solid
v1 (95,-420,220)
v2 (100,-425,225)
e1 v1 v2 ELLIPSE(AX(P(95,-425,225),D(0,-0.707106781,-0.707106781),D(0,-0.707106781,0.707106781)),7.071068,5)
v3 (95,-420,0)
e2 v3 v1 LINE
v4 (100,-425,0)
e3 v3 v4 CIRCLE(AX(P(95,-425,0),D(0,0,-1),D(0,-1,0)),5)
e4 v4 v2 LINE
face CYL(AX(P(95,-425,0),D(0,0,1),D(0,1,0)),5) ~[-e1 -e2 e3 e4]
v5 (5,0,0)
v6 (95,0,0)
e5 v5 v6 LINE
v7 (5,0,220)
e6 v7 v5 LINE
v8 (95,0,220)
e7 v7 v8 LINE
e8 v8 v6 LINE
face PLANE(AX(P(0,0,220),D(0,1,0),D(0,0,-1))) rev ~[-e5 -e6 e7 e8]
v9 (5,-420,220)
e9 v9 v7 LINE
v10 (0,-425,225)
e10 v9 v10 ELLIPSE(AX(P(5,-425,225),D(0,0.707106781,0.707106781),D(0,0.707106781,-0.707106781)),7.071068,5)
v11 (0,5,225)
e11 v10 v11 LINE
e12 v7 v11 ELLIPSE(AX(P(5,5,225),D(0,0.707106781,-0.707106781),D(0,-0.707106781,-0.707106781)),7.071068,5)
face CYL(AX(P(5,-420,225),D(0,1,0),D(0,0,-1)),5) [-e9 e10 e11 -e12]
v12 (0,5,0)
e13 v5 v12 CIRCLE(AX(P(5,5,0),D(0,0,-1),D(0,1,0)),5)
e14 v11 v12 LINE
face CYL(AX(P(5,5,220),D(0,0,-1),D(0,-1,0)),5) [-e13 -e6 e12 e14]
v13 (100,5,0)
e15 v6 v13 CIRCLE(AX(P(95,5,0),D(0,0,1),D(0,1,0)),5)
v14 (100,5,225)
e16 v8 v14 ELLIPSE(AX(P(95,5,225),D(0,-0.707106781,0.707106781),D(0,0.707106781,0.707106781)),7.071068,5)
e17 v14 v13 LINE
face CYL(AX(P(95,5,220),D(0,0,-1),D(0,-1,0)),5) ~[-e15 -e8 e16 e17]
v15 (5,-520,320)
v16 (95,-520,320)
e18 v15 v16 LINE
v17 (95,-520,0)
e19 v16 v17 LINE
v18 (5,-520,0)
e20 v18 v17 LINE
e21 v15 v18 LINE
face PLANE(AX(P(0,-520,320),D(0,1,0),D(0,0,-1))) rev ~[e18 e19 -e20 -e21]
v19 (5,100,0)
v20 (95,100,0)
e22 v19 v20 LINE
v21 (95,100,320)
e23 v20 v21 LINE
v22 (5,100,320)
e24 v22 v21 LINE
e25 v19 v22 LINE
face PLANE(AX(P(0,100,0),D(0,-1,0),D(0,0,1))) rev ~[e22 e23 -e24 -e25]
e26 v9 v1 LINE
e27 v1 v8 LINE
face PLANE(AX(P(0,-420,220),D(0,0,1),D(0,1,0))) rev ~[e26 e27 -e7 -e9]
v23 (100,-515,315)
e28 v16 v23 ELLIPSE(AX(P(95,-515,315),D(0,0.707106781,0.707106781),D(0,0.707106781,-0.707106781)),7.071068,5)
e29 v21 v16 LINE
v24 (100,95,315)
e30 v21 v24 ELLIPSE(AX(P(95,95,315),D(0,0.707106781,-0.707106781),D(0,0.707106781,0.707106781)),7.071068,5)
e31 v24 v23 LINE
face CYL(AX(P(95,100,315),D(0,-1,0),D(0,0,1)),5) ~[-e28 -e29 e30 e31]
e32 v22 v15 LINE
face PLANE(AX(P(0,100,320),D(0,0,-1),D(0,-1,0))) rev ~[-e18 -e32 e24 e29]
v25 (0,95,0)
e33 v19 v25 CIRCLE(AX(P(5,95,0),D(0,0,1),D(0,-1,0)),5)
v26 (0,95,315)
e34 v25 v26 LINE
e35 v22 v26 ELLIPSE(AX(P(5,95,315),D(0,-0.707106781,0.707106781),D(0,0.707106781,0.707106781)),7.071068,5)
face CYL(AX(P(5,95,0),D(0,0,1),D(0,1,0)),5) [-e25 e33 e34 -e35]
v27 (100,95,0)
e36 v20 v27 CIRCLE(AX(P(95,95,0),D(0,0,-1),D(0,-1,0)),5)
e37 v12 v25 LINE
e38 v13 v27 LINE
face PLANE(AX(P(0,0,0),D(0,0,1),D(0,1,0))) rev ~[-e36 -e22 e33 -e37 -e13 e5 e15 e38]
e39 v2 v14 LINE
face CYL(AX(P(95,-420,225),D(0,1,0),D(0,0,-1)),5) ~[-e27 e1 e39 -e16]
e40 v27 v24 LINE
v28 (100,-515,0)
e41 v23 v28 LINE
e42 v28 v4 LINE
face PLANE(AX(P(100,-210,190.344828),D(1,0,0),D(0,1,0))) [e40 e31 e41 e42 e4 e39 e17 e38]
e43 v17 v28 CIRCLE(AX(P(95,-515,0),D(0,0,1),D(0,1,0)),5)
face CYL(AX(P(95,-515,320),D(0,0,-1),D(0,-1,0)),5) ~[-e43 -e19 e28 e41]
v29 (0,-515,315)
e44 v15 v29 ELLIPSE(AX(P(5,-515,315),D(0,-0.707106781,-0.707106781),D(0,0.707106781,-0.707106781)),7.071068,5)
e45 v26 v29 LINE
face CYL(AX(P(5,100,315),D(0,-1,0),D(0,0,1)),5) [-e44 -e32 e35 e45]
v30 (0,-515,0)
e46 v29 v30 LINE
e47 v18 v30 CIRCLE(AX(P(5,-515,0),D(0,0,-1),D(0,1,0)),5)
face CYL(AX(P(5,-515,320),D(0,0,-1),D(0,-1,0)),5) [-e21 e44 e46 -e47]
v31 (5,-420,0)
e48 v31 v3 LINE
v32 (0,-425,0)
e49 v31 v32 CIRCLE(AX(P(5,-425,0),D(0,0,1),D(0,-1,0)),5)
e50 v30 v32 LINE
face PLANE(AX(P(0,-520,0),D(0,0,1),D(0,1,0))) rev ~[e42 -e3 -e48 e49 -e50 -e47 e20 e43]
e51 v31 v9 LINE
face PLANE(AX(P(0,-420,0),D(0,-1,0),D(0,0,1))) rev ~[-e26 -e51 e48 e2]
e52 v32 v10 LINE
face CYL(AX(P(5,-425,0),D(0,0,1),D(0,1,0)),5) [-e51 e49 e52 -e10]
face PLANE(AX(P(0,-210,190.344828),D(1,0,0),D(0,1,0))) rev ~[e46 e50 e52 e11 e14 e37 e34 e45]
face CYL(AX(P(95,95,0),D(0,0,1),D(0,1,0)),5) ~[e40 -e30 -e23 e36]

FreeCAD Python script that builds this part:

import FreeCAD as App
import Part
import Sketcher
from FreeCAD import Vector
Q = App.Units.Quantity


def edges_at(feature, points):
    """Names of the edges that pass closest to the given points."""
    edges = feature.Shape.Edges
    near = lambda p: min(range(len(edges)), key=lambda i: edges[i].distToShape(Part.Vertex(*p))[0])
    return sorted({f"Edge{near(p) + 1}" for p in points})

doc = App.newDocument("Part")
params = doc.addObject("Spreadsheet::Sheet", "Params")
for row, (alias, value) in enumerate([
    ("sketch1_width", "100 mm"),
    ("sketch1_width2", "620 mm"),
    ("sketch1_height", "220 mm"),
    ("sketch1_height2", "320 mm"),
    ("pad1_length", "100 mm"),
    ("fillet_radius", "5 mm"),
], start=1):
    params.set(f"A{row}", alias)
    params.set(f"B{row}", "=" + value)
    params.setAlias(f"B{row}", alias)

body = doc.addObject("PartDesign::Body", "Body")

sketch1 = doc.addObject("Sketcher::SketchObject", "Sketch")
body.addObject(sketch1)
sketch1.AttachmentSupport = (doc.YZ_Plane, [""])
sketch1.MapMode = "FlatFace"
sketch1.addGeometry(Part.LineSegment(Vector(0, 220, 0), Vector(0, 0, 0)), False)
sketch1.addGeometry(Part.LineSegment(Vector(0, 0, 0), Vector(100, 0, 0)), False)
sketch1.addGeometry(Part.LineSegment(Vector(100, 0, 0), Vector(100, 320, 0)), False)
sketch1.addGeometry(Part.LineSegment(Vector(100, 320, 0), Vector(-520, 320, 0)), False)
sketch1.addGeometry(Part.LineSegment(Vector(-520, 320, 0), Vector(-520, 0, 0)), False)
sketch1.addGeometry(Part.LineSegment(Vector(-520, 0, 0), Vector(-420, 0, 0)), False)
sketch1.addGeometry(Part.LineSegment(Vector(-420, 0, 0), Vector(-420, 220, 0)), False)
sketch1.addGeometry(Part.LineSegment(Vector(-420, 220, 0), Vector(0, 220, 0)), False)
sketch1.addConstraint(Sketcher.Constraint("Coincident", 0, 2, 1, 1))
sketch1.addConstraint(Sketcher.Constraint("Coincident", 1, 2, 2, 1))
sketch1.addConstraint(Sketcher.Constraint("Coincident", 2, 2, 3, 1))
sketch1.addConstraint(Sketcher.Constraint("Coincident", 3, 2, 4, 1))
sketch1.addConstraint(Sketcher.Constraint("Coincident", 4, 2, 5, 1))
sketch1.addConstraint(Sketcher.Constraint("Coincident", 5, 2, 6, 1))
sketch1.addConstraint(Sketcher.Constraint("Coincident", 6, 2, 7, 1))
sketch1.addConstraint(Sketcher.Constraint("Coincident", 7, 2, 0, 1))
sketch1.addConstraint(Sketcher.Constraint("Vertical", 0))
sketch1.addConstraint(Sketcher.Constraint("Horizontal", 1))
sketch1.addConstraint(Sketcher.Constraint("Vertical", 2))
sketch1.addConstraint(Sketcher.Constraint("Horizontal", 3))
sketch1.addConstraint(Sketcher.Constraint("Vertical", 4))
sketch1.addConstraint(Sketcher.Constraint("Horizontal", 5))
sketch1.addConstraint(Sketcher.Constraint("Vertical", 6))
sketch1.addConstraint(Sketcher.Constraint("Horizontal", 7))
sketch1.addConstraint(Sketcher.Constraint("Coincident", 0, 2, -1, 1))
sketch1.addConstraint(Sketcher.Constraint("PointOnObject", 4, 2, -1))
sketch1.addConstraint(Sketcher.Constraint("Equal", 1, 5))
sketch1.addConstraint(Sketcher.Constraint("DistanceX", 1, 1, 1, 2, Q("100 mm")))
sketch1.addConstraint(Sketcher.Constraint("DistanceX", 3, 2, 3, 1, Q("620 mm")))
sketch1.addConstraint(Sketcher.Constraint("DistanceY", 0, 2, 0, 1, Q("220 mm")))
sketch1.addConstraint(Sketcher.Constraint("DistanceY", 2, 1, 2, 2, Q("320 mm")))
sketch1.setExpression("Constraints[19]", "Params.sketch1_width")
sketch1.setExpression("Constraints[20]", "Params.sketch1_width2")
sketch1.setExpression("Constraints[21]", "Params.sketch1_height")
sketch1.setExpression("Constraints[22]", "Params.sketch1_height2")
pad1 = doc.addObject("PartDesign::Pad", "Pad")
body.addObject(pad1)
pad1.Profile = sketch1
pad1.setExpression("Length", "Params.pad1_length")
doc.recompute()

fillet = doc.addObject("PartDesign::Fillet", "Fillet")
body.addObject(fillet)
fillet.Base = (pad1, edges_at(pad1, [
    (100, -520, 160),
    (100, -420, 110),
    (100, -210, 220),
    (100, 0, 110),
    (100, 100, 160),
    (0, -520, 160),
    (0, 0, 110),
    (0, -210, 220),
    (0, -420, 110),
    (0, 100, 160),
    (0, -210, 320),
    (100, -210, 320),
]))
fillet.setExpression("Radius", "Params.fillet_radius")

doc.recompute()
